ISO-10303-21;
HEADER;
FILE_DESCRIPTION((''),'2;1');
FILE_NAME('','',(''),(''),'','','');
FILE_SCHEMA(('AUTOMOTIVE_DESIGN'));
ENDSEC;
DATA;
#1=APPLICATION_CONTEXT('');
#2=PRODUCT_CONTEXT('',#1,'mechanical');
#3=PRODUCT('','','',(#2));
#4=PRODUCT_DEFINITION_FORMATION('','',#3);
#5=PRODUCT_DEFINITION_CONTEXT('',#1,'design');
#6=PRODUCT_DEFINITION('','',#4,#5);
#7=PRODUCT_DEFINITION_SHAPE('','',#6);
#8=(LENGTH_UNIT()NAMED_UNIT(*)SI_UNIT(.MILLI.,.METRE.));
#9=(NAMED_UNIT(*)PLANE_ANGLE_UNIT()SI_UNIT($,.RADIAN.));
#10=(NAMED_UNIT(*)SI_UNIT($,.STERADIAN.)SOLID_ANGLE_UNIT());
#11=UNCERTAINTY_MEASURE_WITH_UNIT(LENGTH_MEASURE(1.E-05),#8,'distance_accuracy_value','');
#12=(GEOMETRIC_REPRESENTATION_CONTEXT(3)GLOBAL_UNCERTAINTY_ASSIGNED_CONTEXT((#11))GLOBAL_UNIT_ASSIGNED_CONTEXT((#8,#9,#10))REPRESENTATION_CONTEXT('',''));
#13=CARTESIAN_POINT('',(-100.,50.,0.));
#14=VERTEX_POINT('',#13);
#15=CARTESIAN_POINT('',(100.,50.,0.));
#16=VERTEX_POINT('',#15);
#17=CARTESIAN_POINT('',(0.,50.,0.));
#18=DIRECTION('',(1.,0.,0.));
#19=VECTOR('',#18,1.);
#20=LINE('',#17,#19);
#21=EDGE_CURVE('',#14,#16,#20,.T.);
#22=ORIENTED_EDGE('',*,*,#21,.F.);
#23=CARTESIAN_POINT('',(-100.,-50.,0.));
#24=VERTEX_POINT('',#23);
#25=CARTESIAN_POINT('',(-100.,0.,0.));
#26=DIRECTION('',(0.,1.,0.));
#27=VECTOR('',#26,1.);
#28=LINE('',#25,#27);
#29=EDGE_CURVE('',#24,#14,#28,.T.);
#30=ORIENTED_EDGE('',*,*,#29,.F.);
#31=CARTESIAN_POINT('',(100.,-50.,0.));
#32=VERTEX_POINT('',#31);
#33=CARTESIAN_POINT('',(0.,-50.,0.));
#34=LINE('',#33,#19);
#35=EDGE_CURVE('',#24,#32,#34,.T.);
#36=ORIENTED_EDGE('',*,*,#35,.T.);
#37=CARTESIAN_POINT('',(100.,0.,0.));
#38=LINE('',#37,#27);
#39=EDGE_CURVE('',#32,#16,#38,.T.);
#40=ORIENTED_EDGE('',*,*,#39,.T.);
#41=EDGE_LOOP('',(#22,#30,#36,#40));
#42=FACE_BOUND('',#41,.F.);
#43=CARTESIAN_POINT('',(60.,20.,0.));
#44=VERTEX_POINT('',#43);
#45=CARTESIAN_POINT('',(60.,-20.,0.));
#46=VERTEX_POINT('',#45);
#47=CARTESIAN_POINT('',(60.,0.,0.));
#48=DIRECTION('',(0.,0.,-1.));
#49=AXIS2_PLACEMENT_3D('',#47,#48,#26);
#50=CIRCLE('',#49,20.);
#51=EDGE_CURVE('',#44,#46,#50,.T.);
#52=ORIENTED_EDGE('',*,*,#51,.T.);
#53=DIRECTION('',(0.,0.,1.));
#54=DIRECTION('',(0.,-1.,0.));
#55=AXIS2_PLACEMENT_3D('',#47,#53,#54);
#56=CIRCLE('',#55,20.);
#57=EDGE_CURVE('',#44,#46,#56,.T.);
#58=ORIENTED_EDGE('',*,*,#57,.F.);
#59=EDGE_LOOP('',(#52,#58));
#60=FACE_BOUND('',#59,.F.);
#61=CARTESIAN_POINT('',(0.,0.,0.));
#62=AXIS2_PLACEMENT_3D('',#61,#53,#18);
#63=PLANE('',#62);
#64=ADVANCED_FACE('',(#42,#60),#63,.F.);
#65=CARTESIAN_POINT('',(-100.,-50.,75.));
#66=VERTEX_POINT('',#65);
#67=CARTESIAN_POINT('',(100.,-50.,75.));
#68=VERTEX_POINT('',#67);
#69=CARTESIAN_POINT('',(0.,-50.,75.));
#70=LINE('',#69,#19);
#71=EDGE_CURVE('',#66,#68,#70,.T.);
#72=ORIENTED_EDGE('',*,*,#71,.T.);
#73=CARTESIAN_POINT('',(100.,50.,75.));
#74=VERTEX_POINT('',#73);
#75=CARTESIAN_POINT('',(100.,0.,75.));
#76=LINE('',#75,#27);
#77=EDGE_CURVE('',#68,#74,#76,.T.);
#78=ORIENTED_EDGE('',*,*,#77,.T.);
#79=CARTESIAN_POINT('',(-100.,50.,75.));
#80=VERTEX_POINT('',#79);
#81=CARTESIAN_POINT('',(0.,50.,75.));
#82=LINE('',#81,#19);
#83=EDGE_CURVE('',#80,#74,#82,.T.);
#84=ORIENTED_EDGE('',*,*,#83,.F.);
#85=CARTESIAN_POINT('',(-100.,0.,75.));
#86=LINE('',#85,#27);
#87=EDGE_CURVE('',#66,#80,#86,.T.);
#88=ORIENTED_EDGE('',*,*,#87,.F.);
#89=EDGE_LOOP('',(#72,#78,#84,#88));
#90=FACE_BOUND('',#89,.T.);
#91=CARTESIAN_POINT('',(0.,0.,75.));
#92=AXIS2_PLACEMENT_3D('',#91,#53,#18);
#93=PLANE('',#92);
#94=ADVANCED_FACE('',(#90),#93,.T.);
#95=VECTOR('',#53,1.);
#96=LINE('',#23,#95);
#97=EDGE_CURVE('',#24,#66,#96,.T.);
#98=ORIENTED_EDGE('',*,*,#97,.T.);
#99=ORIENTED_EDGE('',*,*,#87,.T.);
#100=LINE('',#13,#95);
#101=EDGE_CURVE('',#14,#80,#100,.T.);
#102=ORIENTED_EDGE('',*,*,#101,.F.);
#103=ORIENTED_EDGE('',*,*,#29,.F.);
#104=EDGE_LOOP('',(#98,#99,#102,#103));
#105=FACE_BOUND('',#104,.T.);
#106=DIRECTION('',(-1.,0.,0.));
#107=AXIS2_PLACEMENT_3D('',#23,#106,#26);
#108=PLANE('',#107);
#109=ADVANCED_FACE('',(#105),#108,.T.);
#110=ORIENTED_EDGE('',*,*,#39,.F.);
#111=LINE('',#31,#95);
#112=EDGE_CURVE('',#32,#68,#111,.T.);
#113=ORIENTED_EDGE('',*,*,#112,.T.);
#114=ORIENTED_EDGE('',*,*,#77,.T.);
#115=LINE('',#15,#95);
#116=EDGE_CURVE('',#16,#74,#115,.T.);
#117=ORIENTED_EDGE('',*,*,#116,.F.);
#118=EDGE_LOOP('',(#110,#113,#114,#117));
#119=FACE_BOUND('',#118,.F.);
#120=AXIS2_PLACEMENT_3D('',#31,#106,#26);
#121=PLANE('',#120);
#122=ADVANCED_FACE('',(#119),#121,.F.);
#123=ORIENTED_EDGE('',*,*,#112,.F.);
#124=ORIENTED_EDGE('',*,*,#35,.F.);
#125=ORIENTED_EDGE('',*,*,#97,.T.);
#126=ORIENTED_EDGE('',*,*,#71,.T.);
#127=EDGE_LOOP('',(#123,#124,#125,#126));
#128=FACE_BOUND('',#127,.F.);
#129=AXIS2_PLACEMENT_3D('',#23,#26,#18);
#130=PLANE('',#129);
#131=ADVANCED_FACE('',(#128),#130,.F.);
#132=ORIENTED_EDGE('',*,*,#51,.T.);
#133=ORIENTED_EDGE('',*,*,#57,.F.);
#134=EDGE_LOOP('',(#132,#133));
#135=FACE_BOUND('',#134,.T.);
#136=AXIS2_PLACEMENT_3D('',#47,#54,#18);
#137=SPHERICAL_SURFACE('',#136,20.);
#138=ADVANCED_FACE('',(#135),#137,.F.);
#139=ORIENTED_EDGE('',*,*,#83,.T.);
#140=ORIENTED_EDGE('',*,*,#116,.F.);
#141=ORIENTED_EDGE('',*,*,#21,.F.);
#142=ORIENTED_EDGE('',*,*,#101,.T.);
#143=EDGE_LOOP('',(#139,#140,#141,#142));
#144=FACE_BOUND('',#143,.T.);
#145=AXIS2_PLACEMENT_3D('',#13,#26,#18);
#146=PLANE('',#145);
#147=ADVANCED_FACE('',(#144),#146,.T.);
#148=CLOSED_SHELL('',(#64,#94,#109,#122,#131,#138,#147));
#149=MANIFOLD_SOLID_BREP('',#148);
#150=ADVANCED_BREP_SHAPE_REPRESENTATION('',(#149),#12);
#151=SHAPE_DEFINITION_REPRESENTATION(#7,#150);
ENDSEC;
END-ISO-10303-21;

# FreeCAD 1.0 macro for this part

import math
import FreeCAD as App
import Part
import Sketcher

V = App.Vector
Q = App.Units.Quantity

doc = App.newDocument("Part")
body = doc.addObject("PartDesign::Body", "Body")

sketch1 = body.newObject("Sketcher::SketchObject", "Sketch")
sketch1.AttachmentSupport = (doc.getObject("XY_Plane"), [""])
sketch1.MapMode = "FlatFace"
sketch1.addGeometry([
    Part.LineSegment(V(-100, 50, 0), V(-100, -50, 0)),
    Part.LineSegment(V(-100, -50, 0), V(100, -50, 0)),
    Part.LineSegment(V(100, -50, 0), V(100, 50, 0)),
    Part.LineSegment(V(100, 50, 0), V(-100, 50, 0)),
], False)
sketch1.addConstraint([
    Sketcher.Constraint("Coincident", 0, 2, 1, 1),
    Sketcher.Constraint("Coincident", 1, 2, 2, 1),
    Sketcher.Constraint("Coincident", 2, 2, 3, 1),
    Sketcher.Constraint("Coincident", 3, 2, 0, 1),
    Sketcher.Constraint("Vertical", 0),
    Sketcher.Constraint("Horizontal", 1),
    Sketcher.Constraint("Vertical", 2),
    Sketcher.Constraint("Horizontal", 3),
    Sketcher.Constraint("Symmetric", 0, 2, 2, 2, -1, 1),
    Sketcher.Constraint("DistanceX", 1, 1, 1, 2, Q("200 mm")),
    Sketcher.Constraint("DistanceY", 0, 2, 0, 1, Q("100 mm")),
])
pad1 = body.newObject("PartDesign::Pad", "Pad")
pad1.Profile = sketch1
pad1.Length = 75

sketch2 = body.newObject("Sketcher::SketchObject", "Sketch001")
sketch2.AttachmentSupport = (doc.getObject("XY_Plane"), [""])
sketch2.MapMode = "FlatFace"
sketch2.addGeometry([
    Part.LineSegment(V(60, -20, 0), V(60, 20, 0)),
    Part.ArcOfCircle(Part.Circle(V(60, 0, 0), V(0, 0, 1), 20), math.radians(-90), math.radians(90)),
], False)
sketch2.addGeometry(Part.LineSegment(V(60, -20, 0), V(60, 20, 0)), True)
sketch2.addConstraint([
    Sketcher.Constraint("Coincident", 0, 1, 1, 1),
    Sketcher.Constraint("Coincident", 1, 2, 0, 2),
    Sketcher.Constraint("Vertical", 0),
    Sketcher.Constraint("Vertical", 2),
    Sketcher.Constraint("Coincident", 2, 1, 0, 1),
    Sketcher.Constraint("PointOnObject", 1, 3, -1),
    Sketcher.Constraint("Vertical", 1, 3, 0, 1),
    Sketcher.Constraint("Equal", 0, 2),
    Sketcher.Constraint("Radius", 1, Q("20 mm")),
    Sketcher.Constraint("DistanceX", -1, 1, 1, 3, Q("60 mm")),
])
groove = body.newObject("PartDesign::Groove", "Groove")
groove.Profile = sketch2
groove.ReferenceAxis = (sketch2, ["Axis0"])
groove.Angle = 360

doc.recompute()
